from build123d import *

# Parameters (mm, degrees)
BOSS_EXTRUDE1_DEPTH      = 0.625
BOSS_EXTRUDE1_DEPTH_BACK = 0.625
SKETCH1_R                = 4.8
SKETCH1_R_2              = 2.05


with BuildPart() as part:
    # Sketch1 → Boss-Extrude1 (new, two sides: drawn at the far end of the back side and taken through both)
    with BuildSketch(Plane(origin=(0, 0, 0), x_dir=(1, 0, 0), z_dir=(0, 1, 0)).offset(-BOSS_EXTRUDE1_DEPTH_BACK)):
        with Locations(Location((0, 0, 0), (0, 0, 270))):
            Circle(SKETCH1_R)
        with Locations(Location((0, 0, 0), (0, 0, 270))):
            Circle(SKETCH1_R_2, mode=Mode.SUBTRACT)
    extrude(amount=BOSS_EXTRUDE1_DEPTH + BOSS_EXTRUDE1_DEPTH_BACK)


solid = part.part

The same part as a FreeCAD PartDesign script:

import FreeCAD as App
import Part
import Sketcher

V = App.Vector
Q = App.Units.Quantity

doc = App.newDocument("Part")
body = doc.addObject("PartDesign::Body", "Body")

# Sketch on XZ plane
sketch1 = body.newObject("Sketcher::SketchObject", "Sketch")
sketch1.AttachmentSupport = (doc.getObject("XZ_Plane"), [""])
sketch1.MapMode = "FlatFace"
sketch1.addGeometry(Part.Circle(V(0, 0, 0), V(0, 0, 1), 4.8), False)
sketch1.addGeometry(Part.Circle(V(0, 0, 0), V(0, 0, 1), 2), False)
sketch1.addConstraint(Sketcher.Constraint("Coincident", 0, 3, -1, 1))
sketch1.addConstraint(Sketcher.Constraint("Coincident", 1, 3, -1, 1))
sketch1.addConstraint(Sketcher.Constraint("Diameter", 0, Q("9.6 mm")))
sketch1.addConstraint(Sketcher.Constraint("Diameter", 1, Q("4.1 mm")))
pad1 = body.newObject("PartDesign::Pad", "Pad")
pad1.Profile = sketch1
pad1.Type = "TwoLengths"
pad1.Length = 0.625
pad1.Length2 = 0.625
pad1.Reversed = True

doc.recompute()
